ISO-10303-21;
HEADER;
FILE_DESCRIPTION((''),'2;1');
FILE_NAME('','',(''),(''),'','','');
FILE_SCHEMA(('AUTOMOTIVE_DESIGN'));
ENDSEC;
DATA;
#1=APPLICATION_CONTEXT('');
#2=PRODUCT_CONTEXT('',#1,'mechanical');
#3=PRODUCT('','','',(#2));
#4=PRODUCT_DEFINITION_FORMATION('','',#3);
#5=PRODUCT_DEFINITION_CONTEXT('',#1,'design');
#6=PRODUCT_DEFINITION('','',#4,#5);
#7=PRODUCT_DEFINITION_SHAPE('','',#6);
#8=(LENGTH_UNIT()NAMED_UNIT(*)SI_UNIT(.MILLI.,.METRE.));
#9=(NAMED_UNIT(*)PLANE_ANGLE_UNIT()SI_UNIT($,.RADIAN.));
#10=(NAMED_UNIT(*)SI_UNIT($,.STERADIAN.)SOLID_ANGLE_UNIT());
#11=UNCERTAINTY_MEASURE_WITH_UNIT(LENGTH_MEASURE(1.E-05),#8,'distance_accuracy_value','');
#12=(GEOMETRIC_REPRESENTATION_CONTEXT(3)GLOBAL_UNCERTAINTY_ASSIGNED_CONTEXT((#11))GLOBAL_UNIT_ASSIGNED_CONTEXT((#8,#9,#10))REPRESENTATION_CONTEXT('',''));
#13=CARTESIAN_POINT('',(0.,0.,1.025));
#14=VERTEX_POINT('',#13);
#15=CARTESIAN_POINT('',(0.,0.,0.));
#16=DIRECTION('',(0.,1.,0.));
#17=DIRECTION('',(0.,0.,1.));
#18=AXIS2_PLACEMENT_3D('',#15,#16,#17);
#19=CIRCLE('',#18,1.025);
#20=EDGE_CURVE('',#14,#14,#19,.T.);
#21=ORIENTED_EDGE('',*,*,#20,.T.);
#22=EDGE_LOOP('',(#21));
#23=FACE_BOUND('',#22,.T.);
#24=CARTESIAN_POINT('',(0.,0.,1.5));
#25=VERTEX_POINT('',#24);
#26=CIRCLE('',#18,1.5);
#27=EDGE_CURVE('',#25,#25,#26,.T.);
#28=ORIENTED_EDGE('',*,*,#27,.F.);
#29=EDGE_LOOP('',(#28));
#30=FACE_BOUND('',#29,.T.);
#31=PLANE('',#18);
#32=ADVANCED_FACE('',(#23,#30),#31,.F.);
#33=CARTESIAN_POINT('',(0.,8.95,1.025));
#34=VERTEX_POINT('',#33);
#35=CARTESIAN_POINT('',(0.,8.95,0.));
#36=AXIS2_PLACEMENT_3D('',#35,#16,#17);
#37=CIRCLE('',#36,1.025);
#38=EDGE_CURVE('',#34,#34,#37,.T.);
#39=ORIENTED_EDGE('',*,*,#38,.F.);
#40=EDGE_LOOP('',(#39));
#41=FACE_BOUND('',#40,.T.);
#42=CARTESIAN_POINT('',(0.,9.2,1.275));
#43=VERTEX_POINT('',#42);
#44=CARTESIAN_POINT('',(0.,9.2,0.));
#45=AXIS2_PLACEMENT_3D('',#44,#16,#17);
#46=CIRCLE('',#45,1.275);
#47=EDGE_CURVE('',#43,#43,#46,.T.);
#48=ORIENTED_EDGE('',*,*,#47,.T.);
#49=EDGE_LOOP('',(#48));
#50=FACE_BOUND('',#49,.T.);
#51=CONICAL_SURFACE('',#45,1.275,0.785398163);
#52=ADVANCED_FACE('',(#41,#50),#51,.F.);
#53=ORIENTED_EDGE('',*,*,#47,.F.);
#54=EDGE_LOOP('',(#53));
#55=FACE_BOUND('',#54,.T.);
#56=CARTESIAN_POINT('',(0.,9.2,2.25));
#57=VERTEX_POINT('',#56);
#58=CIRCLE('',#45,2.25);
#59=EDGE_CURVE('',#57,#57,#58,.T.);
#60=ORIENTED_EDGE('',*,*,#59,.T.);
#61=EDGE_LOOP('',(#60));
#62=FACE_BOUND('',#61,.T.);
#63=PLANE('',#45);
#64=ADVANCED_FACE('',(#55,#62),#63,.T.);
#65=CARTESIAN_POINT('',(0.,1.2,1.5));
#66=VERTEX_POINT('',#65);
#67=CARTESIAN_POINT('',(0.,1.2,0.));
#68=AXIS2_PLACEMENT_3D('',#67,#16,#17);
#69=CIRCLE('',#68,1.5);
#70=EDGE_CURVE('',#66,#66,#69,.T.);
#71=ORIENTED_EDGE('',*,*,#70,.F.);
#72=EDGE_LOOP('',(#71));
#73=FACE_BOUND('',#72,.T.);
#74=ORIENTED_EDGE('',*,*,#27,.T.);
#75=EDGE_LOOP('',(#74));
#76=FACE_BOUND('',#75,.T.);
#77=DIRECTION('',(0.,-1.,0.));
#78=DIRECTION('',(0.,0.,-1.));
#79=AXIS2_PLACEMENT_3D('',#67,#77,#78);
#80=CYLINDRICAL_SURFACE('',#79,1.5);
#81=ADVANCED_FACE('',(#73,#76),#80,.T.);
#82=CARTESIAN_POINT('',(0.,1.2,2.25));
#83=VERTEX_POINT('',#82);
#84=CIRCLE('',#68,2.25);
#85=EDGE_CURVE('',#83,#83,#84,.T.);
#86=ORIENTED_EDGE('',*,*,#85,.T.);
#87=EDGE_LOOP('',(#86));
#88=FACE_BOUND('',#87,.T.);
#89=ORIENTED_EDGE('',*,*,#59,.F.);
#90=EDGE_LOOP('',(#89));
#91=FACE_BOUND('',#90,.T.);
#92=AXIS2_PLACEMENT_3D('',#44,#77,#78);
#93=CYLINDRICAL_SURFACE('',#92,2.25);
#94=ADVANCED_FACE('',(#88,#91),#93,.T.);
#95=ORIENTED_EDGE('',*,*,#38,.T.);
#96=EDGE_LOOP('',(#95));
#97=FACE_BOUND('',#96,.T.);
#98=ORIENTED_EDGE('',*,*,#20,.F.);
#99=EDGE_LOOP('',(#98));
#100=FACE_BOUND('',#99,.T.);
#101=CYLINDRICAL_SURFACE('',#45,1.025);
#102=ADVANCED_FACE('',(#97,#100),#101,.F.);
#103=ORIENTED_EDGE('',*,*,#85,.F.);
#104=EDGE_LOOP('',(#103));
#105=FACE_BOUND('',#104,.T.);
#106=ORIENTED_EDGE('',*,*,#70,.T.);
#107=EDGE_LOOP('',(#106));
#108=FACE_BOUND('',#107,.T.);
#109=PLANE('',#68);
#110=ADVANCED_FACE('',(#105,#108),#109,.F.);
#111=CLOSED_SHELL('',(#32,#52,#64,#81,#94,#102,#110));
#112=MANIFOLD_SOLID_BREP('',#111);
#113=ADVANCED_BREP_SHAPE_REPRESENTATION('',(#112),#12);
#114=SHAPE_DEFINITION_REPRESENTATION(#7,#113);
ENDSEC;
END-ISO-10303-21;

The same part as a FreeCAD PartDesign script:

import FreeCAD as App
import Part
import Sketcher
from FreeCAD import Vector

doc = App.newDocument("Part")
body = doc.addObject("PartDesign::Body", "Body")

sketch1 = body.newObject("Sketcher::SketchObject", "Sketch")
sketch1.AttachmentSupport = (doc.getObject("XZ_Plane"), [""])
sketch1.MapMode = "FlatFace"
sketch1.addGeometry(Part.Circle(Vector(0, 0, 0), Vector(0, 0, 1), 1.5), False)
sketch1.addConstraint(Sketcher.Constraint("Coincident", 0, 3, -1, 1))
sketch1.addConstraint(Sketcher.Constraint("Diameter", 0, 3.0))
pad1 = body.newObject("PartDesign::Pad", "Pad")
pad1.Profile = sketch1
pad1.Length = 1.2
pad1.Reversed = True

sketch2 = body.newObject("Sketcher::SketchObject", "Sketch001")
sketch2.AttachmentSupport = (doc.getObject("XZ_Plane"), [""])
sketch2.MapMode = "FlatFace"
sketch2.AttachmentOffset = App.Placement(Vector(0, 0, -1.2), App.Rotation())
sketch2.addGeometry(Part.Circle(Vector(0, 0, 0), Vector(0, 0, 1), 2.2), False)
sketch2.addConstraint(Sketcher.Constraint("Coincident", 0, 3, -1, 1))
sketch2.addConstraint(Sketcher.Constraint("Diameter", 0, 4.5))
pad2 = body.newObject("PartDesign::Pad", "Pad001")
pad2.Profile = sketch2
pad2.Length = 8
pad2.Reversed = True

sketch3 = body.newObject("Sketcher::SketchObject", "Sketch002")
sketch3.AttachmentSupport = (doc.getObject("XZ_Plane"), [""])
sketch3.MapMode = "FlatFace"
sketch3.AttachmentOffset = App.Placement(Vector(0, 0, -9.2), App.Rotation())
sketch3.addGeometry(Part.Circle(Vector(0, 0, 0), Vector(0, 0, 1), 1), False)
sketch3.addConstraint(Sketcher.Constraint("Coincident", 0, 3, -1, 1))
sketch3.addConstraint(Sketcher.Constraint("Diameter", 0, 2.05))
doc.recompute()
hole = body.newObject("PartDesign::Hole", "Hole")
hole.Profile = sketch3
hole.ThreadType = "None"
hole.Diameter = 2.05
hole.DepthType = "ThroughAll"
hole.HoleCutType = "Countersink"
hole.HoleCutDiameter = 2.55
hole.HoleCutCountersinkAngle = 90
hole.Reversed = True

doc.recompute()
